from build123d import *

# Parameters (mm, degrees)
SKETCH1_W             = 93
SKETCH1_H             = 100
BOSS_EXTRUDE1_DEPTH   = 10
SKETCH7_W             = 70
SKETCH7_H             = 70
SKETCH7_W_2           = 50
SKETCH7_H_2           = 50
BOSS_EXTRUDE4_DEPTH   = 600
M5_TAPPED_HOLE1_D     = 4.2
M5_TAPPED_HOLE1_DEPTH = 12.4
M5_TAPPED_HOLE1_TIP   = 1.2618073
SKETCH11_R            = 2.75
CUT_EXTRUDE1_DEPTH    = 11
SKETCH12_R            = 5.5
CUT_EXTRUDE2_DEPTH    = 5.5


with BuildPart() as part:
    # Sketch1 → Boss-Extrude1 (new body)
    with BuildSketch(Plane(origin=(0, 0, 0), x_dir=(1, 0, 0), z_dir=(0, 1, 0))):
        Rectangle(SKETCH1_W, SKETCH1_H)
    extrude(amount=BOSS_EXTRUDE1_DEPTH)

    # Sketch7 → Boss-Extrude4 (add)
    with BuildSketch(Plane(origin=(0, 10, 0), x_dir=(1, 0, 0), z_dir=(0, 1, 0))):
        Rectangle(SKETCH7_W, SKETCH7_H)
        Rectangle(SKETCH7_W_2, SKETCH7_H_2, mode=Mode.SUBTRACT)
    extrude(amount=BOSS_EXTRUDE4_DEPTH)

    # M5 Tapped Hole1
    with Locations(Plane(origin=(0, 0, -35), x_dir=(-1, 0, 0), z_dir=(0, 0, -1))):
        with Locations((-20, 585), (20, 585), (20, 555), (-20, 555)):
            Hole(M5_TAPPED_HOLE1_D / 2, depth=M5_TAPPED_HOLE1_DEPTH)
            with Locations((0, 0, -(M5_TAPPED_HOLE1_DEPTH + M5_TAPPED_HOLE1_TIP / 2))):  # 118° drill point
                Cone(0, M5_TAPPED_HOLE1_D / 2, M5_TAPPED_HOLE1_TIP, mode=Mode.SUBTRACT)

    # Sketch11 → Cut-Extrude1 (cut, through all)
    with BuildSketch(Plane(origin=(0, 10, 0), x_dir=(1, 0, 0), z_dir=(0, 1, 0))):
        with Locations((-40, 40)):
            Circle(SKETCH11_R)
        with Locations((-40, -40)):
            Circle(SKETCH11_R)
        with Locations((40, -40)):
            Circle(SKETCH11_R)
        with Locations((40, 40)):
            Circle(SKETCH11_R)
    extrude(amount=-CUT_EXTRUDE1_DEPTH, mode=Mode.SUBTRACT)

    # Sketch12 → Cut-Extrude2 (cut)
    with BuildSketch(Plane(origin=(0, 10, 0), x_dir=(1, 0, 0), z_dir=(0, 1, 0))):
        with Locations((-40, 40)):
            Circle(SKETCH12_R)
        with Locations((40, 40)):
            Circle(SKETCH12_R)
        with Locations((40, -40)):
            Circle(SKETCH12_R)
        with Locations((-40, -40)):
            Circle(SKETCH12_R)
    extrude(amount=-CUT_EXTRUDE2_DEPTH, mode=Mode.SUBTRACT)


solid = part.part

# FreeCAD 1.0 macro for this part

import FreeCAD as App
import Part
import Sketcher
Q = App.Units.Quantity


def add_polygon(sketch, points):
    """Adds a closed chain of lines whose ends are joined by coincident constraints."""
    first, n = sketch.GeometryCount, len(points)
    for a, b in zip(points, points[1:] + points[:1]):
        sketch.addGeometry(Part.LineSegment(App.Vector(*a, 0), App.Vector(*b, 0)), False)
    for i in range(n):
        sketch.addConstraint(Sketcher.Constraint("Coincident", first + i, 2, first + (i + 1) % n, 1))

doc = App.newDocument("Part")
body = doc.addObject("PartDesign::Body", "Body")

sketch1 = doc.addObject("Sketcher::SketchObject", "Sketch")
body.addObject(sketch1)
sketch1.AttachmentSupport = (doc.XZ_Plane, [""])
sketch1.MapMode = "FlatFace"
add_polygon(sketch1, [(-46, -50), (-46, 50), (46, 50), (46, -50)])
sketch1.addConstraint([
    Sketcher.Constraint("Vertical", 0),
    Sketcher.Constraint("Horizontal", 1),
    Sketcher.Constraint("Vertical", 2),
    Sketcher.Constraint("Horizontal", 3),
    Sketcher.Constraint("Symmetric", 0, 2, 2, 2, -1, 1),
    Sketcher.Constraint("DistanceX", 1, 1, 1, 2, Q("93 mm")),
    Sketcher.Constraint("DistanceY", 0, 1, 0, 2, Q("100 mm")),
])
pad1 = doc.addObject("PartDesign::Pad", "Pad")
body.addObject(pad1)
pad1.Profile = sketch1
pad1.Length = 10
pad1.Reversed = True

sketch2 = doc.addObject("Sketcher::SketchObject", "Sketch001")
body.addObject(sketch2)
sketch2.AttachmentSupport = (doc.XZ_Plane, [""])
sketch2.MapMode = "FlatFace"
sketch2.AttachmentOffset = App.Placement(App.Vector(0, 0, -10), App.Rotation())
add_polygon(sketch2, [(-35, -35), (-35, 35), (35, 35), (35, -35)])
add_polygon(sketch2, [(25, 25), (-25, 25), (-25, -25), (25, -25)])
sketch2.addConstraint([
    Sketcher.Constraint("Vertical", 0),
    Sketcher.Constraint("Horizontal", 1),
    Sketcher.Constraint("Vertical", 2),
    Sketcher.Constraint("Horizontal", 3),
    Sketcher.Constraint("Horizontal", 4),
    Sketcher.Constraint("Vertical", 5),
    Sketcher.Constraint("Horizontal", 6),
    Sketcher.Constraint("Vertical", 7),
    Sketcher.Constraint("Symmetric", 0, 2, 2, 2, -1, 1),
    Sketcher.Constraint("Symmetric", 4, 2, 6, 2, -1, 1),
    Sketcher.Constraint("Equal", 3, 0),
    Sketcher.Constraint("Equal", 6, 5),
    Sketcher.Constraint("DistanceX", 1, 1, 1, 2, Q("70 mm")),
    Sketcher.Constraint("DistanceX", 4, 2, 4, 1, Q("50 mm")),
])
pad2 = doc.addObject("PartDesign::Pad", "Pad001")
body.addObject(pad2)
pad2.Profile = sketch2
pad2.Length = 600
pad2.Reversed = True

sketch3 = doc.addObject("Sketcher::SketchObject", "Sketch002")
body.addObject(sketch3)
sketch3.AttachmentSupport = (doc.XY_Plane, [""])
sketch3.MapMode = "FlatFace"
sketch3.AttachmentOffset = App.Placement(App.Vector(0, 0, -35), App.Rotation())
sketch3.addGeometry([
    Part.Circle(App.Vector(20, 585, 0), App.Vector(0, 0, 1), 2.1),
    Part.Circle(App.Vector(-20, 585, 0), App.Vector(0, 0, 1), 2.1),
    Part.Circle(App.Vector(-20, 555, 0), App.Vector(0, 0, 1), 2.1),
    Part.Circle(App.Vector(20, 555, 0), App.Vector(0, 0, 1), 2.1),
], False)
sketch3.addConstraint([
    Sketcher.Constraint("Equal", 0, 1),
    Sketcher.Constraint("Equal", 1, 2),
    Sketcher.Constraint("Equal", 2, 3),
    Sketcher.Constraint("Symmetric", 0, 3, 1, 3, -2),
    Sketcher.Constraint("Symmetric", 2, 3, 3, 3, -2),
    Sketcher.Constraint("Vertical", 1, 3, 2, 3),
    Sketcher.Constraint("Diameter", 0, Q("4.2 mm")),
    Sketcher.Constraint("DistanceX", -1, 1, 0, 3, Q("20 mm")),
    Sketcher.Constraint("DistanceY", -1, 1, 0, 3, Q("585 mm")),
    Sketcher.Constraint("DistanceY", -1, 1, 2, 3, Q("555 mm")),
])
doc.recompute()
hole = doc.addObject("PartDesign::Hole", "Hole")
body.addObject(hole)
hole.Profile = sketch3
hole.ThreadType = "None"
hole.Diameter = 4.2
hole.DepthType = "Dimension"
hole.Depth = 12.4
hole.DrillPoint = "Angled"
hole.DrillPointAngle = 118
hole.Reversed = True

sketch4 = doc.addObject("Sketcher::SketchObject", "Sketch003")
body.addObject(sketch4)
sketch4.AttachmentSupport = (doc.XZ_Plane, [""])
sketch4.MapMode = "FlatFace"
sketch4.AttachmentOffset = App.Placement(App.Vector(0, 0, -10), App.Rotation())
sketch4.addGeometry([
    Part.Circle(App.Vector(-40, -40, 0), App.Vector(0, 0, 1), 2.8),
    Part.Circle(App.Vector(-40, 40, 0), App.Vector(0, 0, 1), 2.8),
    Part.Circle(App.Vector(40, 40, 0), App.Vector(0, 0, 1), 2.8),
    Part.Circle(App.Vector(40, -40, 0), App.Vector(0, 0, 1), 2.8),
], False)
sketch4.addConstraint([
    Sketcher.Constraint("Equal", 0, 1),
    Sketcher.Constraint("Equal", 1, 2),
    Sketcher.Constraint("Equal", 2, 3),
    Sketcher.Constraint("Symmetric", 0, 3, 2, 3, -1, 1),
    Sketcher.Constraint("Symmetric", 1, 3, 3, 3, -1, 1),
    Sketcher.Constraint("Symmetric", 1, 3, 2, 3, -2),
    Sketcher.Constraint("Diameter", 0, Q("5.5 mm")),
    Sketcher.Constraint("DistanceX", 0, 3, -1, 1, Q("40 mm")),
    Sketcher.Constraint("DistanceY", 0, 3, -1, 1, Q("40 mm")),
])
pocket1 = doc.addObject("PartDesign::Pocket", "Pocket")
body.addObject(pocket1)
pocket1.Profile = sketch4
pocket1.Type = "ThroughAll"
pocket1.Reversed = True

sketch5 = doc.addObject("Sketcher::SketchObject", "Sketch004")
body.addObject(sketch5)
sketch5.AttachmentSupport = (doc.XZ_Plane, [""])
sketch5.MapMode = "FlatFace"
sketch5.AttachmentOffset = App.Placement(App.Vector(0, 0, -10), App.Rotation())
sketch5.addGeometry([
    Part.Circle(App.Vector(-40, -40, 0), App.Vector(0, 0, 1), 6),
    Part.Circle(App.Vector(40, -40, 0), App.Vector(0, 0, 1), 6),
    Part.Circle(App.Vector(40, 40, 0), App.Vector(0, 0, 1), 6),
    Part.Circle(App.Vector(-40, 40, 0), App.Vector(0, 0, 1), 6),
], False)
sketch5.addConstraint([
    Sketcher.Constraint("Equal", 0, 1),
    Sketcher.Constraint("Equal", 1, 2),
    Sketcher.Constraint("Equal", 2, 3),
    Sketcher.Constraint("Symmetric", 0, 3, 2, 3, -1, 1),
    Sketcher.Constraint("Symmetric", 1, 3, 3, 3, -1, 1),
    Sketcher.Constraint("Symmetric", 0, 3, 1, 3, -2),
    Sketcher.Constraint("Diameter", 0, Q("11 mm")),
    Sketcher.Constraint("DistanceX", 0, 3, -1, 1, Q("40 mm")),
    Sketcher.Constraint("DistanceY", 0, 3, -1, 1, Q("40 mm")),
])
pocket2 = doc.addObject("PartDesign::Pocket", "Pocket001")
body.addObject(pocket2)
pocket2.Profile = sketch5
pocket2.Length = 5.5
pocket2.Reversed = True

doc.recompute()
